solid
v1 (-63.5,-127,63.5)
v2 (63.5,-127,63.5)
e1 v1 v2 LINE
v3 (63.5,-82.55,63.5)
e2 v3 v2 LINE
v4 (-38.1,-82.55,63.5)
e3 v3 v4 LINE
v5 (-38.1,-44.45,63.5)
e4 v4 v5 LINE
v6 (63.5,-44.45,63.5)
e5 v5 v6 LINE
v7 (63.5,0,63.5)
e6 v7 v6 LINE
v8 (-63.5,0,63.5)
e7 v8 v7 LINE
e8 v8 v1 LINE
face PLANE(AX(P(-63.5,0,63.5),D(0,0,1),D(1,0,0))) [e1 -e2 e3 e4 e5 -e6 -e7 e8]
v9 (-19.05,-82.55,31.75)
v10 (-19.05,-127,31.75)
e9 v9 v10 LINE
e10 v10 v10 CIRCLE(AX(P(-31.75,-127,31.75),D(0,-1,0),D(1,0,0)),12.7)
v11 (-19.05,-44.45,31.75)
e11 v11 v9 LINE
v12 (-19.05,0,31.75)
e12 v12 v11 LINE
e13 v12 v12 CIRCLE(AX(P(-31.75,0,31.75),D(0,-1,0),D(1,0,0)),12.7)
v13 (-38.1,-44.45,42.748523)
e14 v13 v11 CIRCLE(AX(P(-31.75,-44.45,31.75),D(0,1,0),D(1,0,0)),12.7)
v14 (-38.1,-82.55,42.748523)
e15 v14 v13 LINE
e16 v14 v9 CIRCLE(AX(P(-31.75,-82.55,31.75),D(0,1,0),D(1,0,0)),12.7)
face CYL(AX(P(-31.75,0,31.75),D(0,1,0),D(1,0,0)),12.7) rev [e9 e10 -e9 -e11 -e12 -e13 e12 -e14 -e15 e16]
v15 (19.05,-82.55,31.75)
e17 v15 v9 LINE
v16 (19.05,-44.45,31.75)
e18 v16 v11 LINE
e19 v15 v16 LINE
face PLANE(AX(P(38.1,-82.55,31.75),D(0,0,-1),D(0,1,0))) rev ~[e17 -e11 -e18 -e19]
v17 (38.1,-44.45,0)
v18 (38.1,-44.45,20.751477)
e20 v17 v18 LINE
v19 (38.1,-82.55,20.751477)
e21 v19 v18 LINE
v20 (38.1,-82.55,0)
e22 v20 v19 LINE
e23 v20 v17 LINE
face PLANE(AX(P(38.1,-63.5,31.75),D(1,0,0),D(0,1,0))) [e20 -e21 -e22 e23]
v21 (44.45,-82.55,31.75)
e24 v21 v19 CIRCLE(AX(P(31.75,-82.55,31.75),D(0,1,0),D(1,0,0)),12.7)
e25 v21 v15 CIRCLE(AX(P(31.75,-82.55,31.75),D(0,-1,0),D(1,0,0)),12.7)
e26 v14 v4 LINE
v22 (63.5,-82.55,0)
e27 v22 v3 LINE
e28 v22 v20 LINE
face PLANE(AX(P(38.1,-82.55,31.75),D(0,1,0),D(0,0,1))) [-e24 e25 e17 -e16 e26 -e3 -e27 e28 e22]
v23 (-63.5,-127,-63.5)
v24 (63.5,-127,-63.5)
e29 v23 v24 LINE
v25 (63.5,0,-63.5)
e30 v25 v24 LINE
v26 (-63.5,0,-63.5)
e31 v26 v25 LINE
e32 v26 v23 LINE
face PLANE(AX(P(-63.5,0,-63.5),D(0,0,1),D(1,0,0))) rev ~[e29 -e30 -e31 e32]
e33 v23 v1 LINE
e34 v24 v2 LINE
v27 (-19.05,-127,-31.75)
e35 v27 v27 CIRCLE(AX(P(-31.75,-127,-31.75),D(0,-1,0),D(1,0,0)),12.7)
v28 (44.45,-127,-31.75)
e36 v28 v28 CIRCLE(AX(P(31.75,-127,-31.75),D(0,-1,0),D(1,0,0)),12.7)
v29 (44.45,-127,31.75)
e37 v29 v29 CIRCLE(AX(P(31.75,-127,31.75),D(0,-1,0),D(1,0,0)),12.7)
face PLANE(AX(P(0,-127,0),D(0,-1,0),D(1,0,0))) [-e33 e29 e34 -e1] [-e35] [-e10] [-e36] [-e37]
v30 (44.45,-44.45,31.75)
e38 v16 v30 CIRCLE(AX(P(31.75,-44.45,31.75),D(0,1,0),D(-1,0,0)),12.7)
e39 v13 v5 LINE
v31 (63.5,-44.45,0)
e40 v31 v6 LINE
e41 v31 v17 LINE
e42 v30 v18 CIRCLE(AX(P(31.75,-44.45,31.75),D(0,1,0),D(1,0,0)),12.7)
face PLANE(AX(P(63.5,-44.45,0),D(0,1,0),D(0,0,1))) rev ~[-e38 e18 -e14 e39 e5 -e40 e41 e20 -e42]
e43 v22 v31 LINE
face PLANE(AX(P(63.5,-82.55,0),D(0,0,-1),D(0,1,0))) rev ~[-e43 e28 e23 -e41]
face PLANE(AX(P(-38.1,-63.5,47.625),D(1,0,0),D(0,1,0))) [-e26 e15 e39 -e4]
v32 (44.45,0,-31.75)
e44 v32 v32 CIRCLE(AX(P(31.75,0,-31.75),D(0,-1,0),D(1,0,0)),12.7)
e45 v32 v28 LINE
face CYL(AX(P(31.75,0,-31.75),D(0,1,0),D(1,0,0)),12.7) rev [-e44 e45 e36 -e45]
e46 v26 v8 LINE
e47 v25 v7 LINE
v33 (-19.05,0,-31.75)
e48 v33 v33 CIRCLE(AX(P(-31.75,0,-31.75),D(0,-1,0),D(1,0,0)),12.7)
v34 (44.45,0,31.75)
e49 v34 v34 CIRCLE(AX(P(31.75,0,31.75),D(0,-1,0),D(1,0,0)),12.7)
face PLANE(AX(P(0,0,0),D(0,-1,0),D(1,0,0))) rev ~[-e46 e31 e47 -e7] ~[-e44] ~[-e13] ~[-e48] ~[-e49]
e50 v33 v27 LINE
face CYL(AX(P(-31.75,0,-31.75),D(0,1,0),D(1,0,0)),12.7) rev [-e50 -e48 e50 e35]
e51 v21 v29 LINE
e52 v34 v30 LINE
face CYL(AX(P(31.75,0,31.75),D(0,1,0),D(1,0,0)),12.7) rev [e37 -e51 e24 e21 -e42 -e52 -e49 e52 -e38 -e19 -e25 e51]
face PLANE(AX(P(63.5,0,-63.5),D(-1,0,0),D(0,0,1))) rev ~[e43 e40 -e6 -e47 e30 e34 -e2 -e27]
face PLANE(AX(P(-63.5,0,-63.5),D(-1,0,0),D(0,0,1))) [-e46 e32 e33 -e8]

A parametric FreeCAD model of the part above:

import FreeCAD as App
import Part
import Sketcher

V = App.Vector
Q = App.Units.Quantity


def add_polygon(sketch, points):
    """Adds a closed chain of lines whose ends are joined by coincident constraints."""
    first, n = sketch.GeometryCount, len(points)
    for a, b in zip(points, points[1:] + points[:1]):
        sketch.addGeometry(Part.LineSegment(App.Vector(*a, 0), App.Vector(*b, 0)), False)
    for i in range(n):
        sketch.addConstraint(Sketcher.Constraint("Coincident", first + i, 2, first + (i + 1) % n, 1))

doc = App.newDocument("Part")
params = doc.addObject("Spreadsheet::Sheet", "Params")
for row, (alias, value) in enumerate([
    ("sketch1_diameter", "1 in"),
    ("sketch1_width", "5 in"),
    ("pad1_length", "5 in"),
    ("sketch2_width", "1.5 in"),
    ("sketch2_height", "2.5 in"),
    ("pocket1_length", "1 in"),
    ("sketch3_width", "1.5 in"),
    ("sketch3_height", "1.25 in"),
    ("pocket2_length", "3 in"),
], start=1):
    params.set(f"A{row}", alias)
    params.set(f"B{row}", "=" + value)
    params.setAlias(f"B{row}", alias)

body = doc.addObject("PartDesign::Body", "Body")

# Sketch on XZ plane
sketch1 = doc.addObject("Sketcher::SketchObject", "Sketch")
body.addObject(sketch1)
sketch1.AttachmentSupport = (doc.XZ_Plane, [""])
sketch1.MapMode = "FlatFace"
add_polygon(sketch1, [(-64, 64), (-64, -64), (64, -64), (64, 64)])  # lines 0-3
sketch1.addGeometry(Part.Circle(V(-32, -32, 0), V(0, 0, 1), 13), False)  # 4
sketch1.addGeometry(Part.Circle(V(32, -32, 0), V(0, 0, 1), 13), False)  # 5
sketch1.addGeometry(Part.Circle(V(-32, 32, 0), V(0, 0, 1), 13), False)  # 6
sketch1.addGeometry(Part.Circle(V(32, 32, 0), V(0, 0, 1), 13), False)  # 7
sketch1.addConstraint([
    Sketcher.Constraint("Vertical", 0),
    Sketcher.Constraint("Horizontal", 1),
    Sketcher.Constraint("Vertical", 2),
    Sketcher.Constraint("Horizontal", 3),
    Sketcher.Constraint("Equal", 4, 5),
    Sketcher.Constraint("Equal", 5, 6),
    Sketcher.Constraint("Equal", 6, 7),
    Sketcher.Constraint("Symmetric", 5, 3, 6, 3, -1, 1),
    Sketcher.Constraint("Symmetric", 4, 3, 7, 3, -1, 1),
    Sketcher.Constraint("Symmetric", 0, 2, 2, 2, -1, 1),
    Sketcher.Constraint("Symmetric", 4, 3, 5, 3, -2),
    Sketcher.Constraint("Equal", 3, 0),
    Sketcher.Constraint("Diameter", 4, Q("1 in")),
    Sketcher.Constraint("DistanceX", 1, 1, 1, 2, Q("5 in")),
    Sketcher.Constraint("DistanceX", 4, 3, 5, 3, Q("2.5 in")),
    Sketcher.Constraint("DistanceY", 4, 3, 6, 3, Q("2.5 in")),
])
sketch1.setExpression("Constraints[16]", "Params.sketch1_diameter")
sketch1.setExpression("Constraints[17]", "Params.sketch1_width")
pad1 = doc.addObject("PartDesign::Pad", "Pad")
body.addObject(pad1)
pad1.Profile = sketch1
pad1.setExpression("Length", "Params.pad1_length")

# Sketch on YZ plane
sketch2 = doc.addObject("Sketcher::SketchObject", "Sketch001")
body.addObject(sketch2)
sketch2.AttachmentSupport = (doc.YZ_Plane, [""])
sketch2.MapMode = "FlatFace"
sketch2.AttachmentOffset = App.Placement(V(0, 0, 2.5 * 25.4), App.Rotation())
add_polygon(sketch2, [(-83, 64), (-83, 0), (-44, 0), (-44, 64)])  # lines 0-3
sketch2.addConstraint([
    Sketcher.Constraint("Vertical", 0),
    Sketcher.Constraint("Horizontal", 1),
    Sketcher.Constraint("Vertical", 2),
    Sketcher.Constraint("Horizontal", 3),
    Sketcher.Constraint("PointOnObject", 0, 2, -1),
    Sketcher.Constraint("DistanceX", 1, 1, 1, 2, Q("1.5 in")),
    Sketcher.Constraint("DistanceY", 0, 2, 0, 1, Q("2.5 in")),
    Sketcher.Constraint("DistanceX", 0, 2, -1, 1, Q("3.25 in")),
])
sketch2.setExpression("Constraints[9]", "Params.sketch2_width")
sketch2.setExpression("Constraints[10]", "Params.sketch2_height")
pocket1 = doc.addObject("PartDesign::Pocket", "Pocket")
body.addObject(pocket1)
pocket1.Profile = sketch2
pocket1.setExpression("Length", "Params.pocket1_length")

# Sketch on YZ plane
sketch3 = doc.addObject("Sketcher::SketchObject", "Sketch002")
body.addObject(sketch3)
sketch3.AttachmentSupport = (doc.YZ_Plane, [""])
sketch3.MapMode = "FlatFace"
sketch3.AttachmentOffset = App.Placement(V(0, 0, 1.5 * 25.4), App.Rotation())
add_polygon(sketch3, [(-83, 64), (-83, 32), (-44, 32), (-44, 64)])  # lines 0-3
sketch3.addConstraint([
    Sketcher.Constraint("Vertical", 0),
    Sketcher.Constraint("Horizontal", 1),
    Sketcher.Constraint("Vertical", 2),
    Sketcher.Constraint("Horizontal", 3),
    Sketcher.Constraint("DistanceX", 1, 1, 1, 2, Q("1.5 in")),
    Sketcher.Constraint("DistanceY", 0, 2, 0, 1, Q("1.25 in")),
    Sketcher.Constraint("DistanceY", -1, 1, 2, 2, Q("2.5 in")),
    Sketcher.Constraint("DistanceX", 0, 2, -1, 1, Q("3.25 in")),
])
sketch3.setExpression("Constraints[8]", "Params.sketch3_width")
sketch3.setExpression("Constraints[9]", "Params.sketch3_height")
pocket2 = doc.addObject("PartDesign::Pocket", "Pocket001")
body.addObject(pocket2)
pocket2.Profile = sketch3
pocket2.setExpression("Length", "Params.pocket2_length")

doc.recompute()
